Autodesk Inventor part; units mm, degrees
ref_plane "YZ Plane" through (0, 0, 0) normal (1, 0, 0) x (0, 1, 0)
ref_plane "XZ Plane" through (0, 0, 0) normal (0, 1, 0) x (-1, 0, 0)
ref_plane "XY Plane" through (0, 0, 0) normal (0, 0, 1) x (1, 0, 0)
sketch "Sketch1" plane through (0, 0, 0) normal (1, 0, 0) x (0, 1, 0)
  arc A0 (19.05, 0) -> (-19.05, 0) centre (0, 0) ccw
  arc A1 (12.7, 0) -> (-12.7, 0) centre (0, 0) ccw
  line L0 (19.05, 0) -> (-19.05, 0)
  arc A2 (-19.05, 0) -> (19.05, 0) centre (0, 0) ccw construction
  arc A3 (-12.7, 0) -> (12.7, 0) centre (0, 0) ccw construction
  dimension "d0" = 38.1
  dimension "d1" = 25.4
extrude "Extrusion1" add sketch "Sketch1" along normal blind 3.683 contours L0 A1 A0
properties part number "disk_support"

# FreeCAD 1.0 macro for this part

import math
import FreeCAD as App
import Part
import Sketcher
from FreeCAD import Vector
Q = App.Units.Quantity

doc = App.newDocument("Part")
params = doc.addObject("Spreadsheet::Sheet", "Params")
for row, (alias, value) in enumerate([
    ("sketch1_radius", "0.5 in"),
    ("sketch1_radius2", "0.75 in"),
    ("pad1_length", "0.145 in"),
], start=1):
    params.set(f"A{row}", alias)
    params.set(f"B{row}", "=" + value)
    params.setAlias(f"B{row}", alias)

body = doc.addObject("PartDesign::Body", "Body")

sketch1 = doc.addObject("Sketcher::SketchObject", "Sketch")
body.addObject(sketch1)
sketch1.AttachmentSupport = (doc.YZ_Plane, [""])
sketch1.MapMode = "FlatFace"
sketch1.addGeometry([
    Part.LineSegment(Vector(12.7, 0, 0), Vector(19.05, 0, 0)),
    Part.ArcOfCircle(Part.Circle(Vector(0, 0, 0), Vector(0, 0, 1), 19.05), math.radians(0), math.radians(180)),
    Part.LineSegment(Vector(-19.05, 0, 0), Vector(-12.7, 0, 0)),
    Part.ArcOfCircle(Part.Circle(Vector(0, 0, 0), Vector(0, 0, 1), 12.7), math.radians(0), math.radians(180)),
], False)
sketch1.addConstraint([
    Sketcher.Constraint("Coincident", 0, 2, 1, 1),
    Sketcher.Constraint("Coincident", 1, 2, 2, 1),
    Sketcher.Constraint("Coincident", 2, 2, 3, 2),
    Sketcher.Constraint("Coincident", 3, 1, 0, 1),
    Sketcher.Constraint("Horizontal", 0),
    Sketcher.Constraint("Horizontal", 2),
    Sketcher.Constraint("Coincident", 1, 3, -1, 1),
    Sketcher.Constraint("Coincident", 3, 3, -1, 1),
    Sketcher.Constraint("PointOnObject", 0, 2, -1),
    Sketcher.Constraint("PointOnObject", 1, 2, -1),
    Sketcher.Constraint("Radius", 3, Q("0.5 in")),
    Sketcher.Constraint("Radius", 1, Q("0.75 in")),
])
sketch1.setExpression("Constraints[10]", "Params.sketch1_radius")
sketch1.setExpression("Constraints[11]", "Params.sketch1_radius2")
pad1 = doc.addObject("PartDesign::Pad", "Pad")
body.addObject(pad1)
pad1.Profile = sketch1
pad1.setExpression("Length", "Params.pad1_length")

doc.recompute()
